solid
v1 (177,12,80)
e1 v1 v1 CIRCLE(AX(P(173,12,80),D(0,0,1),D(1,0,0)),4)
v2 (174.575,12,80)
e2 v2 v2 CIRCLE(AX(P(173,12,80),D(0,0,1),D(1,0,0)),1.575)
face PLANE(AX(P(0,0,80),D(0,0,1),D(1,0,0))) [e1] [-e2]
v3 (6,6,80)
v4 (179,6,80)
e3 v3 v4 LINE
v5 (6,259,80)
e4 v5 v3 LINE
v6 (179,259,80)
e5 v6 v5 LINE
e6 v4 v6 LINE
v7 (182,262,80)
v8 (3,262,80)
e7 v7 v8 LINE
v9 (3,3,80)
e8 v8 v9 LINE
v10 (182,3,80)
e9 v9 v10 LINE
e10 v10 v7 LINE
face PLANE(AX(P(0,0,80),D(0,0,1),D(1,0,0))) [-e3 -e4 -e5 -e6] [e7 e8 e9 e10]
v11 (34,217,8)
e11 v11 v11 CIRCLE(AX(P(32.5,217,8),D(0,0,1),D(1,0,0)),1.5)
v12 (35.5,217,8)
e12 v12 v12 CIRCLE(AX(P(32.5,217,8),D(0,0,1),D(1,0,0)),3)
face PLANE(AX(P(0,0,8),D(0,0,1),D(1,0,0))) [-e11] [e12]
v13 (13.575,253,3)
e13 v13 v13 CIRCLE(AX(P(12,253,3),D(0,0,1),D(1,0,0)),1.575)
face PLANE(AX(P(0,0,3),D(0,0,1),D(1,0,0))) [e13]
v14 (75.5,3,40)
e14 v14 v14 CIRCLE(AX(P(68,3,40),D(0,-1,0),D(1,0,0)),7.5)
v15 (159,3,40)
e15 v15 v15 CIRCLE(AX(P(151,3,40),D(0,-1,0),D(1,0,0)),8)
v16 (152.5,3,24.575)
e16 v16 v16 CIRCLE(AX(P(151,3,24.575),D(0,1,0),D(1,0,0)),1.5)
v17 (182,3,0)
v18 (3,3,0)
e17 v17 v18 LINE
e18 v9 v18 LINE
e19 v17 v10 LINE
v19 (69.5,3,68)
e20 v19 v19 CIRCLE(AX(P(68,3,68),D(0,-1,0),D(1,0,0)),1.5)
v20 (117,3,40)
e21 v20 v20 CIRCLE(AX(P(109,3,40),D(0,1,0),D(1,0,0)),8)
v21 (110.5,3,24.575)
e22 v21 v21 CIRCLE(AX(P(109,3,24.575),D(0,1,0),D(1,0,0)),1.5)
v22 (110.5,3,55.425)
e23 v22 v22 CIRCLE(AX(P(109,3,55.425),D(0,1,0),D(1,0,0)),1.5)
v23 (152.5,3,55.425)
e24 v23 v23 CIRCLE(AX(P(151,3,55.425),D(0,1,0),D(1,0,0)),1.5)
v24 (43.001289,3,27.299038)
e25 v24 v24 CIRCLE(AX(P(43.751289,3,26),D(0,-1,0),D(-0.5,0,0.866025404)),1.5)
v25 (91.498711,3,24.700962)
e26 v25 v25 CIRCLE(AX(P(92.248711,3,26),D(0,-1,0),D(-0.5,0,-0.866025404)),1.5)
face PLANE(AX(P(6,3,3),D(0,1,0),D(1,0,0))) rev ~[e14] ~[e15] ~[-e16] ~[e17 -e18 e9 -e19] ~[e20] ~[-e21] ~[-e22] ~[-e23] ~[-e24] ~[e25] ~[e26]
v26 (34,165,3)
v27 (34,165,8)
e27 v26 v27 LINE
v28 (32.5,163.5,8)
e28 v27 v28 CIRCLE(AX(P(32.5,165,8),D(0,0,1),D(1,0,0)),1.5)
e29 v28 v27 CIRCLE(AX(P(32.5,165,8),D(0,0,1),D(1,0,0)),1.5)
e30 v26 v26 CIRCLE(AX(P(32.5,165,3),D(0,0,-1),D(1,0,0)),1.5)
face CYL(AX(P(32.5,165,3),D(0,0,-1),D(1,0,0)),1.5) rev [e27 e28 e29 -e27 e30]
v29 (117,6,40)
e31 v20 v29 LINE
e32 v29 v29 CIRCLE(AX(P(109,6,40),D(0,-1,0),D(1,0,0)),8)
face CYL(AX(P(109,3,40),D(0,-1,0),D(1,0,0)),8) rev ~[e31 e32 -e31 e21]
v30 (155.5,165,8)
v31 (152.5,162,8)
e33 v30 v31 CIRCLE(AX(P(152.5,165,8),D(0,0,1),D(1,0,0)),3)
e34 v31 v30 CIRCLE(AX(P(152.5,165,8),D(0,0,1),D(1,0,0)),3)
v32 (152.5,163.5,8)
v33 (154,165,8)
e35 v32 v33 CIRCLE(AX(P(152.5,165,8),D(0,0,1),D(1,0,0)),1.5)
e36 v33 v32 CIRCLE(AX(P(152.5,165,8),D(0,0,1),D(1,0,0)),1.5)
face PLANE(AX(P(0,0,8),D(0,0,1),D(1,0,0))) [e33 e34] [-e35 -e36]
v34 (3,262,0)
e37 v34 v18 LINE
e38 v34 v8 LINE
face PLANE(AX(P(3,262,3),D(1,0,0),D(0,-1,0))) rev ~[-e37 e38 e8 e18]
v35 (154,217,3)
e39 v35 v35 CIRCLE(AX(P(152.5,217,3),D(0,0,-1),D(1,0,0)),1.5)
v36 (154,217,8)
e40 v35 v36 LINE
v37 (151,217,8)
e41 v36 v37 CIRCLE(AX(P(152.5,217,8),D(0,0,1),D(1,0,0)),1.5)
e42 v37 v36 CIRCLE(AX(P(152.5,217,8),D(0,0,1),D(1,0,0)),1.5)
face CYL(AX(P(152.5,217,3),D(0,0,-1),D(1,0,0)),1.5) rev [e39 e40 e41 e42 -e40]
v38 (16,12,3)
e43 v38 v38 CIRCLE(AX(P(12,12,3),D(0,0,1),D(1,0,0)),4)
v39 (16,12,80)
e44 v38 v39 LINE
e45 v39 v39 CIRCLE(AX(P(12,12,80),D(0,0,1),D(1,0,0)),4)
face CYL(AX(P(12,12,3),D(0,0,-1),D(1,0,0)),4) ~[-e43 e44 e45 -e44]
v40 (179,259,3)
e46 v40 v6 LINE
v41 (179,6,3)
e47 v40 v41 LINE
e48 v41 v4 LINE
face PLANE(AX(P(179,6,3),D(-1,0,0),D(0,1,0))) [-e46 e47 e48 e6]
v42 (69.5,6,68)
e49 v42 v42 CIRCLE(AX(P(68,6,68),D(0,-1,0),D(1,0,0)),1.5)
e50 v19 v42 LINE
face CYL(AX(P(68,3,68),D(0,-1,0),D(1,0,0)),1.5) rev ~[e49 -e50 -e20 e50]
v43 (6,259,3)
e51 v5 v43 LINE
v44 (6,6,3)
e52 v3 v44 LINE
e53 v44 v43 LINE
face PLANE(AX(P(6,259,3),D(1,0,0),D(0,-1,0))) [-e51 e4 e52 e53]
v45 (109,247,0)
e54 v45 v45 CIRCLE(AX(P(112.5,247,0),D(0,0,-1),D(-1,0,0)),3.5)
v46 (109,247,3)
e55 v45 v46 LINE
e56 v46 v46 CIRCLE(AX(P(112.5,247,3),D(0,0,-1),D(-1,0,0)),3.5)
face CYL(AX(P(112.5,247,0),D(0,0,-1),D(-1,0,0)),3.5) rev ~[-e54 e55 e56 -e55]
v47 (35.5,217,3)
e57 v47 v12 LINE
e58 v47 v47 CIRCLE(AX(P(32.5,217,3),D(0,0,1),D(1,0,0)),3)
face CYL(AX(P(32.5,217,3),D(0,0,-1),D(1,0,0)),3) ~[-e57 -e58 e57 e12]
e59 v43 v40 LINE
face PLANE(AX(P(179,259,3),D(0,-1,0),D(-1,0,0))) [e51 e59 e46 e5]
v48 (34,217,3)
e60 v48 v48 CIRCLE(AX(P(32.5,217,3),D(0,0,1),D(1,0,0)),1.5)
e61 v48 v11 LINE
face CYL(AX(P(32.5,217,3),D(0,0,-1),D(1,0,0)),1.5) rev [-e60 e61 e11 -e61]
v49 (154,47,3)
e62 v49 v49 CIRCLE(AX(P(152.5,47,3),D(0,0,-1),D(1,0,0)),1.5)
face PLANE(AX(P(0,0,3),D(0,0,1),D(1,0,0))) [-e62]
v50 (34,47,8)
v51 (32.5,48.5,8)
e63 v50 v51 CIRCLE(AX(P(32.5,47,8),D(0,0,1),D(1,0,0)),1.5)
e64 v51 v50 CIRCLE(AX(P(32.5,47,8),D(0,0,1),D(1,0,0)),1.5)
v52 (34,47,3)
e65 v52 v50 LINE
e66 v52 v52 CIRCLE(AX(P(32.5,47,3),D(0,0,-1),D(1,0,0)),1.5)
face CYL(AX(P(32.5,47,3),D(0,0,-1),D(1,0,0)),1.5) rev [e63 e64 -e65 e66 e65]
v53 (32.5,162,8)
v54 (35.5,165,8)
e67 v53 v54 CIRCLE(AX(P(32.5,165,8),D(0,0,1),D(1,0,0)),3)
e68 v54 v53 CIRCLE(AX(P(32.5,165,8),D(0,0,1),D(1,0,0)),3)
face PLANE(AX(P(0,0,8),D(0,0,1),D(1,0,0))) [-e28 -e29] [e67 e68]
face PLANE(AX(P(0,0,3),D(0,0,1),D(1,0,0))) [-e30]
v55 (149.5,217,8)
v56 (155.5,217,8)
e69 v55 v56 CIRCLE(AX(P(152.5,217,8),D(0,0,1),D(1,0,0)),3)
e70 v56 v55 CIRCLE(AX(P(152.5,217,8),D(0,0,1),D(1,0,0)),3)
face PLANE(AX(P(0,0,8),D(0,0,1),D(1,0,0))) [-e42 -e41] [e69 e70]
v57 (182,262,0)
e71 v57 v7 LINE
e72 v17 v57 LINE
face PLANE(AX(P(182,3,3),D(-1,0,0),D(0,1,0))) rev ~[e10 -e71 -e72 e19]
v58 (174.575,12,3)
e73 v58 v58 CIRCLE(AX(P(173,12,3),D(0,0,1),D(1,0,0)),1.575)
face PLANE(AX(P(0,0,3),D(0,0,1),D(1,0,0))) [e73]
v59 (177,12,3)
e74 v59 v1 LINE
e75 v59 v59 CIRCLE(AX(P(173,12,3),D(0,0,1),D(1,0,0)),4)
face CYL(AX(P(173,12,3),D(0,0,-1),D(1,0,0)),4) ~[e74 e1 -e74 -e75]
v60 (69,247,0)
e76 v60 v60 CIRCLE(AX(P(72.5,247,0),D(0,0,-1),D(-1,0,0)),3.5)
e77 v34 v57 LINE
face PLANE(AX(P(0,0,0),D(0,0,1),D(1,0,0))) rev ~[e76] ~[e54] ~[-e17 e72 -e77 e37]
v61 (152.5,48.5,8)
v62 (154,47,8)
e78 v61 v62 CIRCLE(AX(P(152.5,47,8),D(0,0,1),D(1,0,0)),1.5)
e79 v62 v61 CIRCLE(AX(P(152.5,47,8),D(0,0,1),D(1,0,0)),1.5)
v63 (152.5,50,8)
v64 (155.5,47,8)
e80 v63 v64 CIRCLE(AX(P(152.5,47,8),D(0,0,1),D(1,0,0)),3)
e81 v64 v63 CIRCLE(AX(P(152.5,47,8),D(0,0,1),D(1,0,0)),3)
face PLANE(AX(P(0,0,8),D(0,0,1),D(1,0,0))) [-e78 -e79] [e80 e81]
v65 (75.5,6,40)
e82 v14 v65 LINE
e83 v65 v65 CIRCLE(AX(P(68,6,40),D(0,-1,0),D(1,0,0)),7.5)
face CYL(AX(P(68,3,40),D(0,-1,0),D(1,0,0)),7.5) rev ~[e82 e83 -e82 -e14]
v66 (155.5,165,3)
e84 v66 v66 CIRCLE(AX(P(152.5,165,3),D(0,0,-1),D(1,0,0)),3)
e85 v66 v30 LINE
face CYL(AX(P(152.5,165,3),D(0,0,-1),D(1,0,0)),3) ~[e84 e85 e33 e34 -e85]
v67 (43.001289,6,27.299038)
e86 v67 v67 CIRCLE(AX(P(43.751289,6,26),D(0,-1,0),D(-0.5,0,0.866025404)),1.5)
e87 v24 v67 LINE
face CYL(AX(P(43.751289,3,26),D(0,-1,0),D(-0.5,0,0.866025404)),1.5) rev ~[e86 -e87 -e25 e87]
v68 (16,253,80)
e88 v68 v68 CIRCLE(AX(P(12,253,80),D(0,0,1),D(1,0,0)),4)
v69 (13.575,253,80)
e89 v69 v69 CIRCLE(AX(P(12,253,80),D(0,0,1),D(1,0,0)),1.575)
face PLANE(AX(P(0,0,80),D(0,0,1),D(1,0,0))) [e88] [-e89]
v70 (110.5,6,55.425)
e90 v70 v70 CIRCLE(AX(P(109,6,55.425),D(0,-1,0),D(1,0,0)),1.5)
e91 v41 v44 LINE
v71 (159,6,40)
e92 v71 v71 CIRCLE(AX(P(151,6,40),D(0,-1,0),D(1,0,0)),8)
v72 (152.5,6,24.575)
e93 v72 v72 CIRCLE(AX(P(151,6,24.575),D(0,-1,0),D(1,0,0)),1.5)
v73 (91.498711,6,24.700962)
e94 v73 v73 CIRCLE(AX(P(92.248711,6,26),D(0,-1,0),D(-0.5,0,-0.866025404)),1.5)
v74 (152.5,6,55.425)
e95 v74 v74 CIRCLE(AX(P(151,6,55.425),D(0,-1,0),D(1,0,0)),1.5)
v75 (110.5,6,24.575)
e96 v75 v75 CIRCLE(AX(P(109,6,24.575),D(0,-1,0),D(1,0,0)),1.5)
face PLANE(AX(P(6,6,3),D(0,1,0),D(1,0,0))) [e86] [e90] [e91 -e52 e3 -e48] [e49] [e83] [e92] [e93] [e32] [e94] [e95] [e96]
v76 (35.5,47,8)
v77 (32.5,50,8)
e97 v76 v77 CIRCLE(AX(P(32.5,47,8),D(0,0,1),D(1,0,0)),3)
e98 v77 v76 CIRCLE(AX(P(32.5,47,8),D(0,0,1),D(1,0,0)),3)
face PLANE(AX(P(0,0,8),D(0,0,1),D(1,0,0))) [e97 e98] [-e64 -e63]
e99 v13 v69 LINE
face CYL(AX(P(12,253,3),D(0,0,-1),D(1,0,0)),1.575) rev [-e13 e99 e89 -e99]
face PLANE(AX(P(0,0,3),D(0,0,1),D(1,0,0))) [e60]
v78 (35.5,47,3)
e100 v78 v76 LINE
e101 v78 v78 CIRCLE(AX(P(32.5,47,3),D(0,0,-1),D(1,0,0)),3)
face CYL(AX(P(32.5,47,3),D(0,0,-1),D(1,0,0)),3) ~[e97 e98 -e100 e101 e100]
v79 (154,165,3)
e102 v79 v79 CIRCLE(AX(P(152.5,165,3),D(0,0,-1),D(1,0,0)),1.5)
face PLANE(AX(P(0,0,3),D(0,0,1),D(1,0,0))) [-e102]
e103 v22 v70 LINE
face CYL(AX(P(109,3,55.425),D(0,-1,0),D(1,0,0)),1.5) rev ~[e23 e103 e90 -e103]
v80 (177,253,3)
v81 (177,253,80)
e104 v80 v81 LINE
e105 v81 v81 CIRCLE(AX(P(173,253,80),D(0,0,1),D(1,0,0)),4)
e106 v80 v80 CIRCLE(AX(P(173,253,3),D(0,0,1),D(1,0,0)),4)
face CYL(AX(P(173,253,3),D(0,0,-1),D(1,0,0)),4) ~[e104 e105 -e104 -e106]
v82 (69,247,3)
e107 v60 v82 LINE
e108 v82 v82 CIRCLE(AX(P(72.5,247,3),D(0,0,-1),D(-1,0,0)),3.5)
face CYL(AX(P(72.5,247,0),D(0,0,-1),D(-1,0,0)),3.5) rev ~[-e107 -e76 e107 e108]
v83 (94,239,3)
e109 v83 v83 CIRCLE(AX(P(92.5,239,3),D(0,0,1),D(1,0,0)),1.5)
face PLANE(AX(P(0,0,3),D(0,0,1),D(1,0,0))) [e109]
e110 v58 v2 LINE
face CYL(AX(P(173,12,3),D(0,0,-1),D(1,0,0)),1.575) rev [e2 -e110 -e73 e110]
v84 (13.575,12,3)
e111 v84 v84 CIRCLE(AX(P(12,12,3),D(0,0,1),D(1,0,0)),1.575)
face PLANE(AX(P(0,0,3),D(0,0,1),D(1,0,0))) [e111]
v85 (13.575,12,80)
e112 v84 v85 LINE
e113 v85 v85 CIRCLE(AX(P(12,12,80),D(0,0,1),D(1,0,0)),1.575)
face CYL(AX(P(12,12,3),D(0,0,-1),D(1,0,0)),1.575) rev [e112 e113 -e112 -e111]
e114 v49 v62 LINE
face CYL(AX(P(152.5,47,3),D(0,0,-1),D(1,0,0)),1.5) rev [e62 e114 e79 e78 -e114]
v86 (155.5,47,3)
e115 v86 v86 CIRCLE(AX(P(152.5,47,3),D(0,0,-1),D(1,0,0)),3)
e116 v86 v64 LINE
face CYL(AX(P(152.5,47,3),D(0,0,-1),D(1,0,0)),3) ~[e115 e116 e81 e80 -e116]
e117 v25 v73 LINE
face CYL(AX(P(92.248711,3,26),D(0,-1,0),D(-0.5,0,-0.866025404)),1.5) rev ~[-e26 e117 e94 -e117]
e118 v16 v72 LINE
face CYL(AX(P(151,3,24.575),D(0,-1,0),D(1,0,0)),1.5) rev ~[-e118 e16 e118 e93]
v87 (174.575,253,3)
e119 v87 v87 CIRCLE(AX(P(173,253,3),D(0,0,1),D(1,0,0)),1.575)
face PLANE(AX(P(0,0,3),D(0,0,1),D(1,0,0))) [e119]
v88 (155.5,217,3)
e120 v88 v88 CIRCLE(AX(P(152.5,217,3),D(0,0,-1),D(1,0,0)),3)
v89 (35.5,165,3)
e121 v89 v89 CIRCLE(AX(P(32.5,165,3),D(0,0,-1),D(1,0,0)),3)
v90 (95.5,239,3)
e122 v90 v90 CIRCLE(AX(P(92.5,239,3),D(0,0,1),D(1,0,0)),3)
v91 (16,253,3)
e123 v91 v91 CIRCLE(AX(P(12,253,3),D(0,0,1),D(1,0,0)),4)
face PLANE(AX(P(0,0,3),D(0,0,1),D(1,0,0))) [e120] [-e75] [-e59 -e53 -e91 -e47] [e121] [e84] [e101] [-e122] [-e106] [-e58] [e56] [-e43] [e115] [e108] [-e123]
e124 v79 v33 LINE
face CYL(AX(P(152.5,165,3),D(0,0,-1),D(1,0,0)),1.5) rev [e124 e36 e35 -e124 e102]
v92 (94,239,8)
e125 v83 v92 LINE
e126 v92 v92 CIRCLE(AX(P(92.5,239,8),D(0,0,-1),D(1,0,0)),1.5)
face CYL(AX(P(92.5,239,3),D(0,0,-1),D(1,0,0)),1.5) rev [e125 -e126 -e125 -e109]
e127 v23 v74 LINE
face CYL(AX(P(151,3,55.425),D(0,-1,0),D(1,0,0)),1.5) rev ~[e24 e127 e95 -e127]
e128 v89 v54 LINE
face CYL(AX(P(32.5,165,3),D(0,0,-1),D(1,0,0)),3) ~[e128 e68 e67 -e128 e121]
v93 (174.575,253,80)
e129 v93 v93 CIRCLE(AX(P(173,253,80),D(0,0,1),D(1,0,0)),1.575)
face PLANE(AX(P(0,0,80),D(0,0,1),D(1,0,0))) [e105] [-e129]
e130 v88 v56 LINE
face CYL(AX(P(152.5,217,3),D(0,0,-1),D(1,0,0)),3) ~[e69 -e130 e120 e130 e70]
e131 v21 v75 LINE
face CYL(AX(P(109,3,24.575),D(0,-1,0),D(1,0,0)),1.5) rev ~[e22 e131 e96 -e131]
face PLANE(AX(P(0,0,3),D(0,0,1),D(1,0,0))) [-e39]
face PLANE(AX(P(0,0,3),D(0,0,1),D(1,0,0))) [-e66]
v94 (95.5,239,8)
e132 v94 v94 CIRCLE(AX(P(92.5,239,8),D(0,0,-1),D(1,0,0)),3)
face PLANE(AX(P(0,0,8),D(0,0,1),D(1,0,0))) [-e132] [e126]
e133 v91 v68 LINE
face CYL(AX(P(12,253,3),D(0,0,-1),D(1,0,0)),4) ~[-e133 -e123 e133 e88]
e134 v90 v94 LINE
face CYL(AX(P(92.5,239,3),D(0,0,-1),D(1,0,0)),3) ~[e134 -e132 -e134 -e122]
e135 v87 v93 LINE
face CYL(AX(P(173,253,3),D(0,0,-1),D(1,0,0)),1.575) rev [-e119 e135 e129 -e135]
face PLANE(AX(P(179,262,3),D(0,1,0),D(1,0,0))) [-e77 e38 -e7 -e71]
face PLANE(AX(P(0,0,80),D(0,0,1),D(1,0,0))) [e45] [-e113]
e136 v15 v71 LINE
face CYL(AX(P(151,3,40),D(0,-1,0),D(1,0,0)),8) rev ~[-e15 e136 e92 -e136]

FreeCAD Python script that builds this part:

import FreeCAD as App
import Part
import Sketcher

V = App.Vector
Q = App.Units.Quantity


def add_polygon(sketch, points):
    """Adds a closed chain of lines whose ends are joined by coincident constraints."""
    first, n = sketch.GeometryCount, len(points)
    for a, b in zip(points, points[1:] + points[:1]):
        sketch.addGeometry(Part.LineSegment(App.Vector(*a, 0), App.Vector(*b, 0)), False)
    for i in range(n):
        sketch.addConstraint(Sketcher.Constraint("Coincident", first + i, 2, first + (i + 1) % n, 1))

doc = App.newDocument("Part")
body = doc.addObject("PartDesign::Body", "Body")

sketch1 = doc.addObject("Sketcher::SketchObject", "Sketch")
body.addObject(sketch1)
sketch1.AttachmentSupport = (doc.XY_Plane, [""])
sketch1.MapMode = "FlatFace"
add_polygon(sketch1, [(5, 5), (180, 5), (180, 260), (5, 260)])
sketch1.addConstraint([
    Sketcher.Constraint("Horizontal", 0),
    Sketcher.Constraint("Vertical", 1),
    Sketcher.Constraint("Horizontal", 2),
    Sketcher.Constraint("Vertical", 3),
    Sketcher.Constraint("DistanceX", 0, 1, 0, 2, Q("175 mm")),
    Sketcher.Constraint("DistanceY", 1, 1, 1, 2, Q("255 mm")),
    Sketcher.Constraint("DistanceX", -1, 1, 0, 2, Q("180 mm")),
    Sketcher.Constraint("DistanceY", -1, 1, 0, 2, Q("5 mm")),
])
pad1 = doc.addObject("PartDesign::Pad", "Pad")
body.addObject(pad1)
pad1.Profile = sketch1
pad1.Length = 3

sketch2 = doc.addObject("Sketcher::SketchObject", "Sketch001")
body.addObject(sketch2)
sketch2.AttachmentSupport = (doc.XY_Plane, [""])
sketch2.MapMode = "FlatFace"
sketch2.AttachmentOffset = App.Placement(V(0, 0, 3), App.Rotation())
sketch2.addGeometry([
    Part.Circle(V(173, 253, 0), V(0, 0, 1), 4),
    Part.Circle(V(173, 253, 0), V(0, 0, 1), 1.6),
    Part.Circle(V(12, 253, 0), V(0, 0, 1), 4),
    Part.Circle(V(12, 253, 0), V(0, 0, 1), 1.6),
    Part.Circle(V(12, 12, 0), V(0, 0, 1), 4),
    Part.Circle(V(12, 12, 0), V(0, 0, 1), 1.6),
    Part.Circle(V(173, 12, 0), V(0, 0, 1), 4),
    Part.Circle(V(173, 12, 0), V(0, 0, 1), 1.6),
], False)
sketch2.addConstraint([
    Sketcher.Constraint("Coincident", 1, 3, 0, 3),
    Sketcher.Constraint("Coincident", 3, 3, 2, 3),
    Sketcher.Constraint("Coincident", 5, 3, 4, 3),
    Sketcher.Constraint("Coincident", 7, 3, 6, 3),
    Sketcher.Constraint("Equal", 0, 2),
    Sketcher.Constraint("Equal", 1, 3),
    Sketcher.Constraint("Equal", 2, 4),
    Sketcher.Constraint("Equal", 3, 5),
    Sketcher.Constraint("Equal", 4, 6),
    Sketcher.Constraint("Equal", 5, 7),
    Sketcher.Constraint("Horizontal", 1, 3, 2, 3),
    Sketcher.Constraint("Horizontal", 5, 3, 6, 3),
    Sketcher.Constraint("Vertical", 3, 3, 4, 3),
    Sketcher.Constraint("Vertical", 1, 3, 6, 3),
    Sketcher.Constraint("Diameter", 0, Q("8 mm")),
    Sketcher.Constraint("Diameter", 1, Q("3.15 mm")),
    Sketcher.Constraint("DistanceX", -1, 1, 0, 3, Q("173 mm")),
    Sketcher.Constraint("DistanceY", -1, 1, 0, 3, Q("253 mm")),
    Sketcher.Constraint("DistanceX", -1, 1, 2, 3, Q("12 mm")),
    Sketcher.Constraint("DistanceY", -1, 1, 4, 3, Q("12 mm")),
])
pad2 = doc.addObject("PartDesign::Pad", "Pad001")
body.addObject(pad2)
pad2.Profile = sketch2
pad2.Length = 77

sketch3 = doc.addObject("Sketcher::SketchObject", "Sketch002")
body.addObject(sketch3)
sketch3.AttachmentSupport = (doc.XY_Plane, [""])
sketch3.MapMode = "FlatFace"
sketch3.AttachmentOffset = App.Placement(V(0, 0, 3), App.Rotation())
add_polygon(sketch3, [(3, 3), (182, 3), (182, 262), (3, 262)])
add_polygon(sketch3, [(6, 259), (179, 259), (179, 6), (6, 6)])
sketch3.addConstraint([
    Sketcher.Constraint("Horizontal", 0),
    Sketcher.Constraint("Vertical", 1),
    Sketcher.Constraint("Horizontal", 2),
    Sketcher.Constraint("Vertical", 3),
    Sketcher.Constraint("Horizontal", 4),
    Sketcher.Constraint("Vertical", 5),
    Sketcher.Constraint("Horizontal", 6),
    Sketcher.Constraint("Vertical", 7),
    Sketcher.Constraint("DistanceY", -1, 1, 0, 2, Q("3 mm")),
    Sketcher.Constraint("DistanceX", -1, 1, 2, 2, Q("3 mm")),
    Sketcher.Constraint("DistanceX", 4, 2, 1, 2, Q("3 mm")),
    Sketcher.Constraint("DistanceY", 4, 2, 1, 2, Q("3 mm")),
    Sketcher.Constraint("DistanceY", 0, 2, 5, 2, Q("3 mm")),
    Sketcher.Constraint("DistanceX", 3, 2, 6, 2, Q("3 mm")),
    Sketcher.Constraint("DistanceX", 0, 1, 0, 2, Q("179 mm")),
    Sketcher.Constraint("DistanceY", 1, 1, 1, 2, Q("259 mm")),
])
pad3 = doc.addObject("PartDesign::Pad", "Pad002")
body.addObject(pad3)
pad3.Profile = sketch3
pad3.Type = "TwoLengths"
pad3.Length = 77
pad3.Length2 = 3

sketch4 = doc.addObject("Sketcher::SketchObject", "Sketch003")
body.addObject(sketch4)
sketch4.AttachmentSupport = (doc.XY_Plane, [""])
sketch4.MapMode = "FlatFace"
sketch4.AttachmentOffset = App.Placement(V(0, 0, 3), App.Rotation())
sketch4.addGeometry([
    Part.Circle(V(152.5, 47, 0), V(0, 0, 1), 3),
    Part.Circle(V(152.5, 47, 0), V(0, 0, 1), 1.5),
    Part.Circle(V(152.5, 165, 0), V(0, 0, 1), 3),
    Part.Circle(V(152.5, 165, 0), V(0, 0, 1), 1.5),
    Part.Circle(V(32.5, 47, 0), V(0, 0, 1), 3),
    Part.Circle(V(32.5, 47, 0), V(0, 0, 1), 1.5),
    Part.Circle(V(32.5, 165, 0), V(0, 0, 1), 3),
    Part.Circle(V(32.5, 165, 0), V(0, 0, 1), 1.5),
], False)
sketch4.addConstraint([
    Sketcher.Constraint("Coincident", 1, 3, 0, 3),
    Sketcher.Constraint("Coincident", 3, 3, 2, 3),
    Sketcher.Constraint("Coincident", 5, 3, 4, 3),
    Sketcher.Constraint("Coincident", 7, 3, 6, 3),
    Sketcher.Constraint("Equal", 0, 2),
    Sketcher.Constraint("Equal", 1, 3),
    Sketcher.Constraint("Equal", 2, 4),
    Sketcher.Constraint("Equal", 3, 5),
    Sketcher.Constraint("Equal", 4, 6),
    Sketcher.Constraint("Equal", 5, 7),
    Sketcher.Constraint("Horizontal", 1, 3, 4, 3),
    Sketcher.Constraint("Horizontal", 3, 3, 6, 3),
    Sketcher.Constraint("Vertical", 1, 3, 2, 3),
    Sketcher.Constraint("Vertical", 5, 3, 6, 3),
    Sketcher.Constraint("Diameter", 0, Q("6 mm")),
    Sketcher.Constraint("Diameter", 1, Q("3 mm")),
    Sketcher.Constraint("DistanceY", 0, 3, 2, 3, Q("118 mm")),
    Sketcher.Constraint("DistanceY", -1, 1, 0, 3, Q("47 mm")),
    Sketcher.Constraint("DistanceX", 4, 3, 0, 3, Q("120 mm")),
    Sketcher.Constraint("DistanceX", -1, 1, 0, 3, Q("152.5 mm")),
])
pad4 = doc.addObject("PartDesign::Pad", "Pad003")
body.addObject(pad4)
pad4.Profile = sketch4
pad4.Length = 5

sketch5 = doc.addObject("Sketcher::SketchObject", "Sketch004")
body.addObject(sketch5)
sketch5.AttachmentSupport = (doc.XZ_Plane, [""])
sketch5.MapMode = "FlatFace"
sketch5.AttachmentOffset = App.Placement(V(0, 0, -3), App.Rotation())
sketch5.addGeometry(Part.Circle(V(68, 40, 0), V(0, 0, 1), 8), False)
sketch5.addConstraint([
    Sketcher.Constraint("Diameter", 0, Q("15 mm")),
    Sketcher.Constraint("DistanceX", -1, 1, 0, 3, Q("68 mm")),
    Sketcher.Constraint("DistanceY", -1, 1, 0, 3, Q("40 mm")),
])
pocket1 = doc.addObject("PartDesign::Pocket", "Pocket")
body.addObject(pocket1)
pocket1.Profile = sketch5
pocket1.Length = 10

sketch6 = doc.addObject("Sketcher::SketchObject", "Sketch005")
body.addObject(sketch6)
sketch6.AttachmentSupport = (doc.XZ_Plane, [""])
sketch6.MapMode = "FlatFace"
sketch6.AttachmentOffset = App.Placement(V(0, 0, -3), App.Rotation())
sketch6.addGeometry(Part.Circle(V(68, 68, 0), V(0, 0, 1), 1.5), False)
sketch6.addConstraint([
    Sketcher.Constraint("Diameter", 0, Q("3 mm")),
    Sketcher.Constraint("DistanceX", -1, 1, 0, 3, Q("68 mm")),
    Sketcher.Constraint("DistanceY", -1, 1, 0, 3, Q("68 mm")),
])
pocket2 = doc.addObject("PartDesign::Pocket", "Pocket001")
body.addObject(pocket2)
pocket2.Profile = sketch6
pocket2.Length = 10
doc.recompute()

datumline = doc.addObject("PartDesign::Line", "DatumLine")
body.addObject(datumline)
datumline.Placement = App.Placement(V(68, 0, 40), App.Rotation(V(0, 0, 1), V(0, 1, 0)))
polarpattern = doc.addObject("PartDesign::PolarPattern", "PolarPattern")
body.addObject(polarpattern)
polarpattern.Originals = [pocket2]
polarpattern.Axis = (datumline, [""])
polarpattern.Angle = 360
polarpattern.Occurrences = 3
body.Tip = polarpattern

sketch7 = doc.addObject("Sketcher::SketchObject", "Sketch006")
body.addObject(sketch7)
sketch7.AttachmentSupport = (doc.XZ_Plane, [""])
sketch7.MapMode = "FlatFace"
sketch7.AttachmentOffset = App.Placement(V(0, 0, -3), App.Rotation())
sketch7.addGeometry([
    Part.Circle(V(109, 40, 0), V(0, 0, 1), 8),
    Part.Circle(V(151, 40, 0), V(0, 0, 1), 8),
], False)
sketch7.addConstraint([
    Sketcher.Constraint("Equal", 0, 1),
    Sketcher.Constraint("Horizontal", 0, 3, 1, 3),
    Sketcher.Constraint("Diameter", 0, Q("16 mm")),
    Sketcher.Constraint("DistanceX", -1, 1, 0, 3, Q("109 mm")),
    Sketcher.Constraint("DistanceY", -1, 1, 0, 3, Q("40 mm")),
    Sketcher.Constraint("DistanceX", -1, 1, 1, 3, Q("151 mm")),
])
pocket3 = doc.addObject("PartDesign::Pocket", "Pocket002")
body.addObject(pocket3)
pocket3.Profile = sketch7
pocket3.Length = 10

sketch8 = doc.addObject("Sketcher::SketchObject", "Sketch007")
body.addObject(sketch8)
sketch8.AttachmentSupport = (doc.XZ_Plane, [""])
sketch8.MapMode = "FlatFace"
sketch8.AttachmentOffset = App.Placement(V(0, 0, -3), App.Rotation())
sketch8.addGeometry([
    Part.Circle(V(151, 24.6, 0), V(0, 0, 1), 1.5),
    Part.Circle(V(151, 55.4, 0), V(0, 0, 1), 1.5),
    Part.Circle(V(109, 24.6, 0), V(0, 0, 1), 1.5),
    Part.Circle(V(109, 55.4, 0), V(0, 0, 1), 1.5),
], False)
sketch8.addConstraint([
    Sketcher.Constraint("Equal", 0, 1),
    Sketcher.Constraint("Equal", 1, 2),
    Sketcher.Constraint("Equal", 2, 3),
    Sketcher.Constraint("Horizontal", 0, 3, 2, 3),
    Sketcher.Constraint("Horizontal", 1, 3, 3, 3),
    Sketcher.Constraint("Vertical", 0, 3, 1, 3),
    Sketcher.Constraint("Vertical", 2, 3, 3, 3),
    Sketcher.Constraint("Diameter", 0, Q("3 mm")),
    Sketcher.Constraint("DistanceX", -1, 1, 0, 3, Q("151 mm")),
    Sketcher.Constraint("DistanceX", -1, 1, 2, 3, Q("109 mm")),
    Sketcher.Constraint("DistanceY", 0, 3, 1, 3, Q("30.85 mm")),
    Sketcher.Constraint("DistanceY", -1, 1, 0, 3, Q("24.575 mm")),
])
pocket4 = doc.addObject("PartDesign::Pocket", "Pocket003")
body.addObject(pocket4)
pocket4.Profile = sketch8
pocket4.Length = 10

sketch9 = doc.addObject("Sketcher::SketchObject", "Sketch008")
body.addObject(sketch9)
sketch9.AttachmentSupport = (doc.XY_Plane, [""])
sketch9.MapMode = "FlatFace"
sketch9.addGeometry([
    Part.Circle(V(112.5, 247, 0), V(0, 0, 1), 3.5),
    Part.Circle(V(72.5, 247, 0), V(0, 0, 1), 3.5),
], False)
sketch9.addConstraint([
    Sketcher.Constraint("Equal", 0, 1),
    Sketcher.Constraint("Horizontal", 0, 3, 1, 3),
    Sketcher.Constraint("Diameter", 0, Q("7 mm")),
    Sketcher.Constraint("DistanceY", -1, 1, 0, 3, Q("247 mm")),
    Sketcher.Constraint("DistanceX", 1, 3, 0, 3, Q("40 mm")),
    Sketcher.Constraint("DistanceX", -1, 1, 0, 3, Q("112.5 mm")),
])
pocket5 = doc.addObject("PartDesign::Pocket", "Pocket004")
body.addObject(pocket5)
pocket5.Profile = sketch9
pocket5.Length = 10
pocket5.Reversed = True

sketch10 = doc.addObject("Sketcher::SketchObject", "Sketch009")
body.addObject(sketch10)
sketch10.AttachmentSupport = (doc.XY_Plane, [""])
sketch10.MapMode = "FlatFace"
sketch10.AttachmentOffset = App.Placement(V(0, 0, 3), App.Rotation())
sketch10.addGeometry([
    Part.Circle(V(92.5, 239, 0), V(0, 0, 1), 3),
    Part.Circle(V(92.5, 239, 0), V(0, 0, 1), 1.5),
    Part.Circle(V(152.5, 217, 0), V(0, 0, 1), 3),
    Part.Circle(V(152.5, 217, 0), V(0, 0, 1), 1.5),
    Part.Circle(V(32.5, 217, 0), V(0, 0, 1), 3),
    Part.Circle(V(32.5, 217, 0), V(0, 0, 1), 1.5),
], False)
sketch10.addConstraint([
    Sketcher.Constraint("Coincident", 1, 3, 0, 3),
    Sketcher.Constraint("Coincident", 3, 3, 2, 3),
    Sketcher.Constraint("Coincident", 5, 3, 4, 3),
    Sketcher.Constraint("Equal", 0, 2),
    Sketcher.Constraint("Equal", 1, 3),
    Sketcher.Constraint("Equal", 2, 4),
    Sketcher.Constraint("Equal", 3, 5),
    Sketcher.Constraint("Horizontal", 3, 3, 4, 3),
    Sketcher.Constraint("Diameter", 0, Q("6 mm")),
    Sketcher.Constraint("Diameter", 1, Q("3 mm")),
    Sketcher.Constraint("DistanceX", 0, 3, 2, 3, Q("60 mm")),
    Sketcher.Constraint("DistanceY", 2, 3, 0, 3, Q("22 mm")),
    Sketcher.Constraint("DistanceX", 4, 3, 0, 3, Q("60 mm")),
    Sketcher.Constraint("DistanceY", -1, 1, 0, 3, Q("239 mm")),
    Sketcher.Constraint("DistanceX", -1, 1, 0, 3, Q("92.5 mm")),
])
pad5 = doc.addObject("PartDesign::Pad", "Pad004")
body.addObject(pad5)
pad5.Profile = sketch10
pad5.Length = 5

doc.recompute()
